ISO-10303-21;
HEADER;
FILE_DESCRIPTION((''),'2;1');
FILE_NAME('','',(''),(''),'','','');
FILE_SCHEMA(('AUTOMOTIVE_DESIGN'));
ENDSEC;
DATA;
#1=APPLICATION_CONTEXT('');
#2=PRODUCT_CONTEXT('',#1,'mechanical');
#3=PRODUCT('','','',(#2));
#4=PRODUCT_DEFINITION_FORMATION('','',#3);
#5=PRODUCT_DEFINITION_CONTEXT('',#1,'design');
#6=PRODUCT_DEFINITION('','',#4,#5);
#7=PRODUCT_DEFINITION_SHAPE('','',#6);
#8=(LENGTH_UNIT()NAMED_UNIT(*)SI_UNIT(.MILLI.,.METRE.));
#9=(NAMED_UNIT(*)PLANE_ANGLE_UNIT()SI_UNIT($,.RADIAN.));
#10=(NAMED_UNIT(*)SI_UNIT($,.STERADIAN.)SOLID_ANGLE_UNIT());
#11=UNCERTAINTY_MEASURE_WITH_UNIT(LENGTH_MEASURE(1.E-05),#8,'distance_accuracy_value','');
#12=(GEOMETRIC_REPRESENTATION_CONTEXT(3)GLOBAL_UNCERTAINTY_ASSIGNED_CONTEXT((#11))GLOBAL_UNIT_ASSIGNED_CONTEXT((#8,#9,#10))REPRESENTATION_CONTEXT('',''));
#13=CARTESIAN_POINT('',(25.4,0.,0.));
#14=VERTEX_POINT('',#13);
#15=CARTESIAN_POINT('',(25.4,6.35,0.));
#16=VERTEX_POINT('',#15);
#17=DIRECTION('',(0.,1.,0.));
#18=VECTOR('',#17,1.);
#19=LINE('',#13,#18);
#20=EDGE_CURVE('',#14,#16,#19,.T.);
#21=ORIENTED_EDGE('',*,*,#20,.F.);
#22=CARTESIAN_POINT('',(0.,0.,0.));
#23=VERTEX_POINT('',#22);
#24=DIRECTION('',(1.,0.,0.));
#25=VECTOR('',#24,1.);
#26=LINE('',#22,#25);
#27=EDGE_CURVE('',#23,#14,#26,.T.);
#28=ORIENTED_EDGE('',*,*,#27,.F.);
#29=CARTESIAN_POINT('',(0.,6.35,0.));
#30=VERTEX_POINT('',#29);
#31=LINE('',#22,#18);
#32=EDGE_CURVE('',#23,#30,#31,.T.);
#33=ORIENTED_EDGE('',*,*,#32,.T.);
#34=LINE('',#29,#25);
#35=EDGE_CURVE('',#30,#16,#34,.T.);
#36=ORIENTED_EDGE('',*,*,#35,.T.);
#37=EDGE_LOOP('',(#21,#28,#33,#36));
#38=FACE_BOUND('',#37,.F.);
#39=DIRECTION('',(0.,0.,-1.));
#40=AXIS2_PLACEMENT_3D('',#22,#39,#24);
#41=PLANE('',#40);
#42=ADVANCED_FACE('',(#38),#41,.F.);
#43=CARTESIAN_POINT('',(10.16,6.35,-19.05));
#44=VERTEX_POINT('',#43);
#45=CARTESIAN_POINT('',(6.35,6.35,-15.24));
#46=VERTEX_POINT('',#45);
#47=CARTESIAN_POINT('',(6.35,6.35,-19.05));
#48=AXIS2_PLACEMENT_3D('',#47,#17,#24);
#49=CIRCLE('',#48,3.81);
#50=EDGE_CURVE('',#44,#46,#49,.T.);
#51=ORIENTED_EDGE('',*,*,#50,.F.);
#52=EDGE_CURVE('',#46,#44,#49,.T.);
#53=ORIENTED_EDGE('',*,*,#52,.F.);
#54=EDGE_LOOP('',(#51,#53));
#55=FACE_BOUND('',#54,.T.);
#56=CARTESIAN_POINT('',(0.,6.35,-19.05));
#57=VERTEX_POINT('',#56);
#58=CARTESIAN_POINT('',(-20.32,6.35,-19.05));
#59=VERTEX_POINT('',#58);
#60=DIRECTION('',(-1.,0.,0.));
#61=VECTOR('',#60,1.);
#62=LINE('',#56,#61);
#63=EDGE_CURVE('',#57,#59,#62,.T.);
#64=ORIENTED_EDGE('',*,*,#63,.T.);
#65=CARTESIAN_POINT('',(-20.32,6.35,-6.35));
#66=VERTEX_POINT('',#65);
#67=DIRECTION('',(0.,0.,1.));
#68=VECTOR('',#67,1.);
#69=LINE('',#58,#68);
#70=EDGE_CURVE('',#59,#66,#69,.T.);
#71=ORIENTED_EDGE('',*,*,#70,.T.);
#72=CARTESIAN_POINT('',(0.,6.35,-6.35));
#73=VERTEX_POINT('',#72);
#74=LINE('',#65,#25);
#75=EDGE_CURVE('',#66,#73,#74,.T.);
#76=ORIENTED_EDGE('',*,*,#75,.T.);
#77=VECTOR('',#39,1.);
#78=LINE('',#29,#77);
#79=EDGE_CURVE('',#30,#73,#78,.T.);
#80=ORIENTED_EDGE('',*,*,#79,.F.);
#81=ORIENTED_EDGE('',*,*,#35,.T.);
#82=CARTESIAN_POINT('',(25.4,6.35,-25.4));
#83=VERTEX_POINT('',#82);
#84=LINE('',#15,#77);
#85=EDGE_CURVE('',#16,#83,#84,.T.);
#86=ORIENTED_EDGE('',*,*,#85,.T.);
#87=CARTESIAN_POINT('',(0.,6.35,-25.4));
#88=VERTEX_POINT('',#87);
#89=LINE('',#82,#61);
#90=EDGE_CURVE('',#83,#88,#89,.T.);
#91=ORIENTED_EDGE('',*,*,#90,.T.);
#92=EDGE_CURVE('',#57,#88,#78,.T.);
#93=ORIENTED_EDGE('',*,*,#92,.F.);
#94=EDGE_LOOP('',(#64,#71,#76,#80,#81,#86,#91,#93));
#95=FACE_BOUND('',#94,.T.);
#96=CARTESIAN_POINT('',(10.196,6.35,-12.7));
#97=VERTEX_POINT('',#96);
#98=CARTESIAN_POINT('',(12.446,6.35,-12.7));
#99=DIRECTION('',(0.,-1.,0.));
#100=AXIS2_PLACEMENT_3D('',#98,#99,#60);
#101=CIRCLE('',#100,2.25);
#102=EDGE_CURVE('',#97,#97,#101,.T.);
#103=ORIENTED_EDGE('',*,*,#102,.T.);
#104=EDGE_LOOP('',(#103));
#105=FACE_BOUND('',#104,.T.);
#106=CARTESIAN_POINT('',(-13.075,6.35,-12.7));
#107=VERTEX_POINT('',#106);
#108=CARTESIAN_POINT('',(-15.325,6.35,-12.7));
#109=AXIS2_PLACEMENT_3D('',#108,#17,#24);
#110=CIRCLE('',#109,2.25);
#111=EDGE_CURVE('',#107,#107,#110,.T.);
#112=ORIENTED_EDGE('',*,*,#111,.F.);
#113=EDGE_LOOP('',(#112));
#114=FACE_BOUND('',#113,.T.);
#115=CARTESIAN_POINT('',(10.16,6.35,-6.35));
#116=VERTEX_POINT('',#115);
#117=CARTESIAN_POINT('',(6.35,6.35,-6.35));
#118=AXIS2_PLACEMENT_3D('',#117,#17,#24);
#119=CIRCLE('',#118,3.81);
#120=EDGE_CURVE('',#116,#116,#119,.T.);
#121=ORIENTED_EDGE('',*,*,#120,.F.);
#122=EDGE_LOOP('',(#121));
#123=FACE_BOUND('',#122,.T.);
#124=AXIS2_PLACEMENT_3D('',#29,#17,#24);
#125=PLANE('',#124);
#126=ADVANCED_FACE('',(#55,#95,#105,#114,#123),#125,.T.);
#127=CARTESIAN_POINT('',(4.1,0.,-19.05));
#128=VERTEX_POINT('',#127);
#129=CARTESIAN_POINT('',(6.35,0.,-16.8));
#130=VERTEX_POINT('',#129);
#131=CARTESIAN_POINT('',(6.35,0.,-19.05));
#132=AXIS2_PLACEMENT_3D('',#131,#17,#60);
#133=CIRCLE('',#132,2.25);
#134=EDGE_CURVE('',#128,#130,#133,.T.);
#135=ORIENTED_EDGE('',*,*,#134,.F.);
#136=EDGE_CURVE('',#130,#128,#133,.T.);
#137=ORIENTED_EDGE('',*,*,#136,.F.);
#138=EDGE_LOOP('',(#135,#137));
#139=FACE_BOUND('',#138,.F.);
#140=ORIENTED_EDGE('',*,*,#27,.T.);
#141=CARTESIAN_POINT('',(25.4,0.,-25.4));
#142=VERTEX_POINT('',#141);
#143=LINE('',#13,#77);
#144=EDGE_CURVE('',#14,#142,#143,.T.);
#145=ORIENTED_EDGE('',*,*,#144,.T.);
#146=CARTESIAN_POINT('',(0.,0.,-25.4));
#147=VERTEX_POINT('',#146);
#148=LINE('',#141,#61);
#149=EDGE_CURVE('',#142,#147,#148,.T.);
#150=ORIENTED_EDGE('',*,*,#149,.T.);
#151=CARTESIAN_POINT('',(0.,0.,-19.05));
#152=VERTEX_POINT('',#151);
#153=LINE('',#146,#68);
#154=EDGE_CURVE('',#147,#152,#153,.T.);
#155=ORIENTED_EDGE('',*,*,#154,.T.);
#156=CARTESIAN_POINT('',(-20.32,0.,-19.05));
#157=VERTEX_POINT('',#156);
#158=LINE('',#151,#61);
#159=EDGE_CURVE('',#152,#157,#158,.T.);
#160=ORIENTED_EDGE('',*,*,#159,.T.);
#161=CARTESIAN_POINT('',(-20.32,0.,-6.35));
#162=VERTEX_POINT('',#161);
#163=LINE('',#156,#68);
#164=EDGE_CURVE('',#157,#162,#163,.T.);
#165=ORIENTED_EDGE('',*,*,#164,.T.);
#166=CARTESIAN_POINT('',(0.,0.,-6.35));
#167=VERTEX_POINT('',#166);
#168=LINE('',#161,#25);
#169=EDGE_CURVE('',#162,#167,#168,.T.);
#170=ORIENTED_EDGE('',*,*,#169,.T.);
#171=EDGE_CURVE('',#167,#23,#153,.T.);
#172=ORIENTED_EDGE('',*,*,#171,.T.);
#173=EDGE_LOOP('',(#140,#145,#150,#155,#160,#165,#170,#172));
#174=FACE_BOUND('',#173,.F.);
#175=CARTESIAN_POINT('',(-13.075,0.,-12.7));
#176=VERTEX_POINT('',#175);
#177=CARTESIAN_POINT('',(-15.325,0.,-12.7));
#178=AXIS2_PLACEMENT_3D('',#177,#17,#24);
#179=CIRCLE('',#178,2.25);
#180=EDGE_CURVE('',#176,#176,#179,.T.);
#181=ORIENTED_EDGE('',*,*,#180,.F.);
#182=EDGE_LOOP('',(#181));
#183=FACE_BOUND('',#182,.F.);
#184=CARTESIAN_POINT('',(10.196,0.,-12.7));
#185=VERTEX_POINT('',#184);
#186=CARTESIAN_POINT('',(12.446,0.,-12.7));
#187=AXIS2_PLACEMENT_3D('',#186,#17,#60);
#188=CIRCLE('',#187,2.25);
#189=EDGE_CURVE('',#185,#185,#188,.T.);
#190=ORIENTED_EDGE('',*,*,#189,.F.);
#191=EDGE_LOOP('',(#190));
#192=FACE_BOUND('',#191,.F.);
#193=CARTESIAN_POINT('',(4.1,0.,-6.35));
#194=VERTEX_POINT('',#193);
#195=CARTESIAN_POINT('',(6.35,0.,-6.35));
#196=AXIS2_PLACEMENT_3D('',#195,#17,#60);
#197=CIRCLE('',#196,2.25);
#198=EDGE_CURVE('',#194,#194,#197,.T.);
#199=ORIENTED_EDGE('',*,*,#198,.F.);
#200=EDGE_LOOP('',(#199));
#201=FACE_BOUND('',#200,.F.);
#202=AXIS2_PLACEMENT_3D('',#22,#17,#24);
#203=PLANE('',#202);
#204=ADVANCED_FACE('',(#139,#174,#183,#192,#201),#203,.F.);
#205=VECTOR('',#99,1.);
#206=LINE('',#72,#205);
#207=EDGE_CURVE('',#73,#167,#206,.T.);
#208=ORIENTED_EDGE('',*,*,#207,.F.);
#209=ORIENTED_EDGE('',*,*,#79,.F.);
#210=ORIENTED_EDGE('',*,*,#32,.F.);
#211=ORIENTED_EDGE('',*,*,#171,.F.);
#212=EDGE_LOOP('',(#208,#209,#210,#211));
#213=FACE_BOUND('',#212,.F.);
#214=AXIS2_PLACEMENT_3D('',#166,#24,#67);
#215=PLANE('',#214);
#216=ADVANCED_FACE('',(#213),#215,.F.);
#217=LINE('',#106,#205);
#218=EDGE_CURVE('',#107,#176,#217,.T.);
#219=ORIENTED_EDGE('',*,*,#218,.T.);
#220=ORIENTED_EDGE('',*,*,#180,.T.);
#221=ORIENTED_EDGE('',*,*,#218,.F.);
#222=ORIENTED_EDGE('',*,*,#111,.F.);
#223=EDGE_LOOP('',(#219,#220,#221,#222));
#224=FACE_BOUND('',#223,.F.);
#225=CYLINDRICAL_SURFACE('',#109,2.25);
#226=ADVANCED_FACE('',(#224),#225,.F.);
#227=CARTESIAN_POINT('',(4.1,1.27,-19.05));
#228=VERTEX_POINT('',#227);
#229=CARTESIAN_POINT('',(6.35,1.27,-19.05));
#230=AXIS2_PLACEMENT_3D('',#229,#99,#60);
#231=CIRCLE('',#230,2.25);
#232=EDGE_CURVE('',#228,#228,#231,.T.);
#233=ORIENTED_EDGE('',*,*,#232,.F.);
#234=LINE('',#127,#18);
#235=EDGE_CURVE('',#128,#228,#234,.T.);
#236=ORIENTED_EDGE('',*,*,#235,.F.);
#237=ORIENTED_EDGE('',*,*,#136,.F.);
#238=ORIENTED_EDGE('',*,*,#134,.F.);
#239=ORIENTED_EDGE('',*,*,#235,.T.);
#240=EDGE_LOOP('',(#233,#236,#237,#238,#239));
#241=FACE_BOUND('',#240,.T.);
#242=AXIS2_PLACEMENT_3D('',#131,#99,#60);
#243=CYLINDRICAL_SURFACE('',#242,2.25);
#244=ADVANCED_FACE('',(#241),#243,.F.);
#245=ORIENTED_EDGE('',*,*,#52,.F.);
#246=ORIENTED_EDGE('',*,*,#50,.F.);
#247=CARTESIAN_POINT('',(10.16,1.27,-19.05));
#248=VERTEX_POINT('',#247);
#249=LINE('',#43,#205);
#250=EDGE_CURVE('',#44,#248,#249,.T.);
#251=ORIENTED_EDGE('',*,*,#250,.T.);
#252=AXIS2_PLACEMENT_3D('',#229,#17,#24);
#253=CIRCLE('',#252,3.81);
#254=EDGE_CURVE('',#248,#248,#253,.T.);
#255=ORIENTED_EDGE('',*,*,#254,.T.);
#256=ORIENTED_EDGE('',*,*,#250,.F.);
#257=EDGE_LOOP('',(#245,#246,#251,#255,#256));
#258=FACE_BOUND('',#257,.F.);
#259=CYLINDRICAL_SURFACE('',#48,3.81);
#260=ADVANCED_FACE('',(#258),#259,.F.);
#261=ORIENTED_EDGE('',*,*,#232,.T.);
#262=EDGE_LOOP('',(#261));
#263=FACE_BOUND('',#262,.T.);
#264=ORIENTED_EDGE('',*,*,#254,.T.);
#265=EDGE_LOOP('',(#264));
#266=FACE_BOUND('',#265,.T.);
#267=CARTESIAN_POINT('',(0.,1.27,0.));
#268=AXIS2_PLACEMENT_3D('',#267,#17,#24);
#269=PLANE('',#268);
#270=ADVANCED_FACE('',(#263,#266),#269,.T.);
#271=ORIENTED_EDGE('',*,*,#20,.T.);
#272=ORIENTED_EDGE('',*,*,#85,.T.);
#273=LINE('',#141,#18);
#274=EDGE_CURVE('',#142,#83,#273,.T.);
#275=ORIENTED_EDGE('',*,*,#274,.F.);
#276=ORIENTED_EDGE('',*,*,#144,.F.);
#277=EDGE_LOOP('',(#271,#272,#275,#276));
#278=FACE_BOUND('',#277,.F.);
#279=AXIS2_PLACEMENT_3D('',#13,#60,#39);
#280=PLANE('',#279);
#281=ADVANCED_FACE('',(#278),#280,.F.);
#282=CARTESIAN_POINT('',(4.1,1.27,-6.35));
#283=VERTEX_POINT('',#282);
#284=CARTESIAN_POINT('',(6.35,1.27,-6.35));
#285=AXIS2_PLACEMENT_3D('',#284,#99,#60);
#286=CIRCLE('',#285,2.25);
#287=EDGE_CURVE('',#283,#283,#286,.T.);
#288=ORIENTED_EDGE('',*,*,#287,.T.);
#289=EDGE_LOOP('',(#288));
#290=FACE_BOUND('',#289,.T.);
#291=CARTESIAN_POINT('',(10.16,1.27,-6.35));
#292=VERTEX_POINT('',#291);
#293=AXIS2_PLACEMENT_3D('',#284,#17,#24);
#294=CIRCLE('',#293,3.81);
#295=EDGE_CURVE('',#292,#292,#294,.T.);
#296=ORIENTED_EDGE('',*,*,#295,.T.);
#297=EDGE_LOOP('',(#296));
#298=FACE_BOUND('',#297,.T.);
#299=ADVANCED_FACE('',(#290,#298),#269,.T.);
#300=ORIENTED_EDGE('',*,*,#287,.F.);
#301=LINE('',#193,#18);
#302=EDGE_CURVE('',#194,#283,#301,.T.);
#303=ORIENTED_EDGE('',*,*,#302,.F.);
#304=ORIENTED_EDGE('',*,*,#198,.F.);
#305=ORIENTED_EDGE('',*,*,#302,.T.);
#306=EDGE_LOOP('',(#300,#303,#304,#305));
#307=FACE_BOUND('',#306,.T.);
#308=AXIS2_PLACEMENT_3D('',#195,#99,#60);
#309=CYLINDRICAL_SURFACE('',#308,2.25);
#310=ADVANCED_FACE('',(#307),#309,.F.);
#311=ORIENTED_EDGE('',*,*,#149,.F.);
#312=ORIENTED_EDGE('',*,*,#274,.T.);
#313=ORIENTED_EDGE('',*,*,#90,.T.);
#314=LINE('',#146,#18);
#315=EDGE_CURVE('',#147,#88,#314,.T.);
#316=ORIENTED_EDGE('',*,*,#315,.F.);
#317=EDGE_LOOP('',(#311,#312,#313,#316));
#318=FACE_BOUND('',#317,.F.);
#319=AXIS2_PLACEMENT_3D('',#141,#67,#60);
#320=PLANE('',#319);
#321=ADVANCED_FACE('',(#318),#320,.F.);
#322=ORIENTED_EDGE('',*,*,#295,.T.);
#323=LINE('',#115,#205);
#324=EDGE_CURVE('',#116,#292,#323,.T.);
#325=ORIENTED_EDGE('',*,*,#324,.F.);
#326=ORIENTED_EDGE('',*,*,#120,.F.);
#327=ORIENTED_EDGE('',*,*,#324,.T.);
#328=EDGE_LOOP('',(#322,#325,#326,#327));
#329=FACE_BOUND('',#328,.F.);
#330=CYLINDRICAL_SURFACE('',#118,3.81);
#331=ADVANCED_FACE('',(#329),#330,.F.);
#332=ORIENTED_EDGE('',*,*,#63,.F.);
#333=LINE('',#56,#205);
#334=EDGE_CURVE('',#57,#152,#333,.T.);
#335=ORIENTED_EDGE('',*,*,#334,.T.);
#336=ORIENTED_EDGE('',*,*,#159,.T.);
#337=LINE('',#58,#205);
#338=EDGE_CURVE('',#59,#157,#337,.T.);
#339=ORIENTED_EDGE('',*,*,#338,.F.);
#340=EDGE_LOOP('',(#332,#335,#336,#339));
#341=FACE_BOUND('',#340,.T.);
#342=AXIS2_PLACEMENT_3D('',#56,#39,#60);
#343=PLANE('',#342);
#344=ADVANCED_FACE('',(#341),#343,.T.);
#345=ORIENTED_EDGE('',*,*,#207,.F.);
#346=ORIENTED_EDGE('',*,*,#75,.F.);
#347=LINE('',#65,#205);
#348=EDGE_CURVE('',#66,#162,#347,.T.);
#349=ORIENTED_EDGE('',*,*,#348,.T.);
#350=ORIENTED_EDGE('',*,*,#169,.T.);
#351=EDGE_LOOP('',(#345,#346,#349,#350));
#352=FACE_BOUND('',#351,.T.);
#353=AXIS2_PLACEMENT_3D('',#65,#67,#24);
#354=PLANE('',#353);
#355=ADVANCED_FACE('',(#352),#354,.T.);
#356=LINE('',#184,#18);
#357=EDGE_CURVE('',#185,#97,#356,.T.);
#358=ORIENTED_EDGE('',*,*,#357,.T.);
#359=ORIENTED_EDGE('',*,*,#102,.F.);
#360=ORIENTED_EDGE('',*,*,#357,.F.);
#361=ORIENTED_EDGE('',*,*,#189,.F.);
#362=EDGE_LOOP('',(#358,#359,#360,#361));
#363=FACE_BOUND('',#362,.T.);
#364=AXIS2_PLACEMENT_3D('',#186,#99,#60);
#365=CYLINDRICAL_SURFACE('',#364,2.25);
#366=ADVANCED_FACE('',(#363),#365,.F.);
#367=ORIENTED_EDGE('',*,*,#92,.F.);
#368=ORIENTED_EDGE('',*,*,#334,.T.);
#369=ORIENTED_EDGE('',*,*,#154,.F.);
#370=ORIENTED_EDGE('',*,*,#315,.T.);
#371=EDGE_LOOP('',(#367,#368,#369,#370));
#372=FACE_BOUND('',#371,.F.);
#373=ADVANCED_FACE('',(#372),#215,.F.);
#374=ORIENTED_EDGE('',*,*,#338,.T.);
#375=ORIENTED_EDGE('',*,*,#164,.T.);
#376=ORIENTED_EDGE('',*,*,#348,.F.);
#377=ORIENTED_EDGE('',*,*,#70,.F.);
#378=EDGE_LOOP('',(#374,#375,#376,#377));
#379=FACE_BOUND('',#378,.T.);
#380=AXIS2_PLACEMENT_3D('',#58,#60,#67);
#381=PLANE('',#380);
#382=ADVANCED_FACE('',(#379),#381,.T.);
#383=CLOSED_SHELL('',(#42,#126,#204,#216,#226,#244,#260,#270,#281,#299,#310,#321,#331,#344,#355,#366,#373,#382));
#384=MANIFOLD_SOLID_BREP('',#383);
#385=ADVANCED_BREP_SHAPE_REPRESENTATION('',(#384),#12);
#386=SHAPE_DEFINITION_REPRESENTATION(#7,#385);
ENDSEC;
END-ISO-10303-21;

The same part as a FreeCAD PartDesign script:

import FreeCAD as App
import Part
import Sketcher
Q = App.Units.Quantity

doc = App.newDocument("Part")
params = doc.addObject("Spreadsheet::Sheet", "Params")
for row, (alias, value) in enumerate([
    ("sketch1_width", "1 in"),
    ("pad1_length", "0.25 in"),
    ("sketch2_width", "0.8 in"),
    ("sketch2_height", "0.5 in"),
    ("pad2_length", "0.25 in"),
    ("sketch3_diameter", "0.3 in"),
    ("pocket1_length", "0.2 in"),
], start=1):
    params.set(f"A{row}", alias)
    params.set(f"B{row}", "=" + value)
    params.setAlias(f"B{row}", alias)

body = doc.addObject("PartDesign::Body", "Body")

sketch1 = doc.addObject("Sketcher::SketchObject", "Sketch")
body.addObject(sketch1)
sketch1.AttachmentSupport = (doc.XZ_Plane, [""])
sketch1.MapMode = "FlatFace"
sketch1.addGeometry([
    Part.LineSegment(App.Vector(0, 0, 0), App.Vector(25.4, 0, 0)),
    Part.LineSegment(App.Vector(25.4, 0, 0), App.Vector(25.4, -25.4, 0)),
    Part.LineSegment(App.Vector(25.4, -25.4, 0), App.Vector(0, -25.4, 0)),
    Part.LineSegment(App.Vector(0, -25.4, 0), App.Vector(0, 0, 0)),
    Part.Circle(App.Vector(6.3, -6.3, 0), App.Vector(0, 0, 1), 2.2),
    Part.Circle(App.Vector(6.3, -19.1, 0), App.Vector(0, 0, 1), 2.2),
    Part.Circle(App.Vector(12.4, -12.7, 0), App.Vector(0, 0, 1), 2.2),
], False)
sketch1.addConstraint([
    Sketcher.Constraint("Coincident", 0, 2, 1, 1),
    Sketcher.Constraint("Coincident", 1, 2, 2, 1),
    Sketcher.Constraint("Coincident", 2, 2, 3, 1),
    Sketcher.Constraint("Coincident", 3, 2, 0, 1),
    Sketcher.Constraint("Horizontal", 0),
    Sketcher.Constraint("Vertical", 1),
    Sketcher.Constraint("Horizontal", 2),
    Sketcher.Constraint("Vertical", 3),
    Sketcher.Constraint("Coincident", 3, 2, -1, 1),
    Sketcher.Constraint("Equal", 4, 5),
    Sketcher.Constraint("Equal", 5, 6),
    Sketcher.Constraint("Vertical", 4, 3, 5, 3),
    Sketcher.Constraint("Equal", 2, 1),
    Sketcher.Constraint("DistanceX", 0, 1, 0, 2, Q("1 in")),
    Sketcher.Constraint("DistanceY", 6, 3, -1, 1, Q("0.5 in")),
    Sketcher.Constraint("DistanceY", 5, 3, 4, 3, Q("0.5 in")),
    Sketcher.Constraint("Diameter", 4, 4.5),
    Sketcher.Constraint("DistanceX", -1, 1, 4, 3, Q("0.25 in")),
    Sketcher.Constraint("DistanceY", 4, 3, -1, 1, Q("0.25 in")),
    Sketcher.Constraint("DistanceX", -1, 1, 6, 3, Q("0.49 in")),
])
sketch1.setExpression("Constraints[13]", "Params.sketch1_width")
pad1 = doc.addObject("PartDesign::Pad", "Pad")
body.addObject(pad1)
pad1.Profile = sketch1
pad1.setExpression("Length", "Params.pad1_length")
pad1.Reversed = True

sketch2 = doc.addObject("Sketcher::SketchObject", "Sketch001")
body.addObject(sketch2)
sketch2.AttachmentSupport = (doc.XZ_Plane, [""])
sketch2.MapMode = "FlatFace"
sketch2.AttachmentOffset = App.Placement(App.Vector(0, 0, -0.25 * 25.4), App.Rotation())
sketch2.addGeometry([
    Part.LineSegment(App.Vector(0, -6.3, 0), App.Vector(0, -12.7, 0)),
    Part.LineSegment(App.Vector(0, -12.7, 0), App.Vector(0, -19.1, 0)),
    Part.LineSegment(App.Vector(0, -19.1, 0), App.Vector(-20.3, -19.1, 0)),
    Part.LineSegment(App.Vector(-20.3, -19.1, 0), App.Vector(-20.3, -6.3, 0)),
    Part.LineSegment(App.Vector(-20.3, -6.3, 0), App.Vector(0, -6.3, 0)),
    Part.Circle(App.Vector(-15.3, -12.7, 0), App.Vector(0, 0, 1), 2.2),
], False)
sketch2.addConstraint([
    Sketcher.Constraint("Coincident", 0, 2, 1, 1),
    Sketcher.Constraint("Coincident", 1, 2, 2, 1),
    Sketcher.Constraint("Coincident", 2, 2, 3, 1),
    Sketcher.Constraint("Coincident", 3, 2, 4, 1),
    Sketcher.Constraint("Coincident", 4, 2, 0, 1),
    Sketcher.Constraint("Vertical", 0),
    Sketcher.Constraint("Vertical", 1),
    Sketcher.Constraint("Horizontal", 2),
    Sketcher.Constraint("Vertical", 3),
    Sketcher.Constraint("Horizontal", 4),
    Sketcher.Constraint("PointOnObject", 0, 2, -2),
    Sketcher.Constraint("Horizontal", 5, 3, 0, 2),
    Sketcher.Constraint("Equal", 0, 1),
    Sketcher.Constraint("DistanceX", 2, 2, 2, 1, Q("0.8 in")),
    Sketcher.Constraint("Diameter", 5, 4.5),
    Sketcher.Constraint("DistanceY", 3, 1, 3, 2, Q("0.5 in")),
    Sketcher.Constraint("DistanceY", 5, 3, -1, 1, Q("0.5 in")),
    Sketcher.Constraint("DistanceX", 5, 3, -1, 1, 15.325),
])
sketch2.setExpression("Constraints[13]", "Params.sketch2_width")
sketch2.setExpression("Constraints[15]", "Params.sketch2_height")
pad2 = doc.addObject("PartDesign::Pad", "Pad001")
body.addObject(pad2)
pad2.Profile = sketch2
pad2.setExpression("Length", "Params.pad2_length")

sketch3 = doc.addObject("Sketcher::SketchObject", "Sketch002")
body.addObject(sketch3)
sketch3.AttachmentSupport = (doc.XZ_Plane, [""])
sketch3.MapMode = "FlatFace"
sketch3.AttachmentOffset = App.Placement(App.Vector(0, 0, -0.25 * 25.4), App.Rotation())
sketch3.addGeometry([
    Part.Circle(App.Vector(6.3, -19.1, 0), App.Vector(0, 0, 1), 3.8),
    Part.Circle(App.Vector(6.3, -6.3, 0), App.Vector(0, 0, 1), 3.8),
], False)
sketch3.addConstraint([
    Sketcher.Constraint("Equal", 0, 1),
    Sketcher.Constraint("Vertical", 0, 3, 1, 3),
    Sketcher.Constraint("Diameter", 0, Q("0.3 in")),
    Sketcher.Constraint("DistanceY", 0, 3, 1, 3, Q("0.5 in")),
    Sketcher.Constraint("DistanceX", -1, 1, 0, 3, Q("0.25 in")),
    Sketcher.Constraint("DistanceY", 0, 3, -1, 1, Q("0.75 in")),
])
sketch3.setExpression("Constraints[2]", "Params.sketch3_diameter")
pocket1 = doc.addObject("PartDesign::Pocket", "Pocket")
body.addObject(pocket1)
pocket1.Profile = sketch3
pocket1.setExpression("Length", "Params.pocket1_length")
pocket1.Reversed = True

doc.recompute()
